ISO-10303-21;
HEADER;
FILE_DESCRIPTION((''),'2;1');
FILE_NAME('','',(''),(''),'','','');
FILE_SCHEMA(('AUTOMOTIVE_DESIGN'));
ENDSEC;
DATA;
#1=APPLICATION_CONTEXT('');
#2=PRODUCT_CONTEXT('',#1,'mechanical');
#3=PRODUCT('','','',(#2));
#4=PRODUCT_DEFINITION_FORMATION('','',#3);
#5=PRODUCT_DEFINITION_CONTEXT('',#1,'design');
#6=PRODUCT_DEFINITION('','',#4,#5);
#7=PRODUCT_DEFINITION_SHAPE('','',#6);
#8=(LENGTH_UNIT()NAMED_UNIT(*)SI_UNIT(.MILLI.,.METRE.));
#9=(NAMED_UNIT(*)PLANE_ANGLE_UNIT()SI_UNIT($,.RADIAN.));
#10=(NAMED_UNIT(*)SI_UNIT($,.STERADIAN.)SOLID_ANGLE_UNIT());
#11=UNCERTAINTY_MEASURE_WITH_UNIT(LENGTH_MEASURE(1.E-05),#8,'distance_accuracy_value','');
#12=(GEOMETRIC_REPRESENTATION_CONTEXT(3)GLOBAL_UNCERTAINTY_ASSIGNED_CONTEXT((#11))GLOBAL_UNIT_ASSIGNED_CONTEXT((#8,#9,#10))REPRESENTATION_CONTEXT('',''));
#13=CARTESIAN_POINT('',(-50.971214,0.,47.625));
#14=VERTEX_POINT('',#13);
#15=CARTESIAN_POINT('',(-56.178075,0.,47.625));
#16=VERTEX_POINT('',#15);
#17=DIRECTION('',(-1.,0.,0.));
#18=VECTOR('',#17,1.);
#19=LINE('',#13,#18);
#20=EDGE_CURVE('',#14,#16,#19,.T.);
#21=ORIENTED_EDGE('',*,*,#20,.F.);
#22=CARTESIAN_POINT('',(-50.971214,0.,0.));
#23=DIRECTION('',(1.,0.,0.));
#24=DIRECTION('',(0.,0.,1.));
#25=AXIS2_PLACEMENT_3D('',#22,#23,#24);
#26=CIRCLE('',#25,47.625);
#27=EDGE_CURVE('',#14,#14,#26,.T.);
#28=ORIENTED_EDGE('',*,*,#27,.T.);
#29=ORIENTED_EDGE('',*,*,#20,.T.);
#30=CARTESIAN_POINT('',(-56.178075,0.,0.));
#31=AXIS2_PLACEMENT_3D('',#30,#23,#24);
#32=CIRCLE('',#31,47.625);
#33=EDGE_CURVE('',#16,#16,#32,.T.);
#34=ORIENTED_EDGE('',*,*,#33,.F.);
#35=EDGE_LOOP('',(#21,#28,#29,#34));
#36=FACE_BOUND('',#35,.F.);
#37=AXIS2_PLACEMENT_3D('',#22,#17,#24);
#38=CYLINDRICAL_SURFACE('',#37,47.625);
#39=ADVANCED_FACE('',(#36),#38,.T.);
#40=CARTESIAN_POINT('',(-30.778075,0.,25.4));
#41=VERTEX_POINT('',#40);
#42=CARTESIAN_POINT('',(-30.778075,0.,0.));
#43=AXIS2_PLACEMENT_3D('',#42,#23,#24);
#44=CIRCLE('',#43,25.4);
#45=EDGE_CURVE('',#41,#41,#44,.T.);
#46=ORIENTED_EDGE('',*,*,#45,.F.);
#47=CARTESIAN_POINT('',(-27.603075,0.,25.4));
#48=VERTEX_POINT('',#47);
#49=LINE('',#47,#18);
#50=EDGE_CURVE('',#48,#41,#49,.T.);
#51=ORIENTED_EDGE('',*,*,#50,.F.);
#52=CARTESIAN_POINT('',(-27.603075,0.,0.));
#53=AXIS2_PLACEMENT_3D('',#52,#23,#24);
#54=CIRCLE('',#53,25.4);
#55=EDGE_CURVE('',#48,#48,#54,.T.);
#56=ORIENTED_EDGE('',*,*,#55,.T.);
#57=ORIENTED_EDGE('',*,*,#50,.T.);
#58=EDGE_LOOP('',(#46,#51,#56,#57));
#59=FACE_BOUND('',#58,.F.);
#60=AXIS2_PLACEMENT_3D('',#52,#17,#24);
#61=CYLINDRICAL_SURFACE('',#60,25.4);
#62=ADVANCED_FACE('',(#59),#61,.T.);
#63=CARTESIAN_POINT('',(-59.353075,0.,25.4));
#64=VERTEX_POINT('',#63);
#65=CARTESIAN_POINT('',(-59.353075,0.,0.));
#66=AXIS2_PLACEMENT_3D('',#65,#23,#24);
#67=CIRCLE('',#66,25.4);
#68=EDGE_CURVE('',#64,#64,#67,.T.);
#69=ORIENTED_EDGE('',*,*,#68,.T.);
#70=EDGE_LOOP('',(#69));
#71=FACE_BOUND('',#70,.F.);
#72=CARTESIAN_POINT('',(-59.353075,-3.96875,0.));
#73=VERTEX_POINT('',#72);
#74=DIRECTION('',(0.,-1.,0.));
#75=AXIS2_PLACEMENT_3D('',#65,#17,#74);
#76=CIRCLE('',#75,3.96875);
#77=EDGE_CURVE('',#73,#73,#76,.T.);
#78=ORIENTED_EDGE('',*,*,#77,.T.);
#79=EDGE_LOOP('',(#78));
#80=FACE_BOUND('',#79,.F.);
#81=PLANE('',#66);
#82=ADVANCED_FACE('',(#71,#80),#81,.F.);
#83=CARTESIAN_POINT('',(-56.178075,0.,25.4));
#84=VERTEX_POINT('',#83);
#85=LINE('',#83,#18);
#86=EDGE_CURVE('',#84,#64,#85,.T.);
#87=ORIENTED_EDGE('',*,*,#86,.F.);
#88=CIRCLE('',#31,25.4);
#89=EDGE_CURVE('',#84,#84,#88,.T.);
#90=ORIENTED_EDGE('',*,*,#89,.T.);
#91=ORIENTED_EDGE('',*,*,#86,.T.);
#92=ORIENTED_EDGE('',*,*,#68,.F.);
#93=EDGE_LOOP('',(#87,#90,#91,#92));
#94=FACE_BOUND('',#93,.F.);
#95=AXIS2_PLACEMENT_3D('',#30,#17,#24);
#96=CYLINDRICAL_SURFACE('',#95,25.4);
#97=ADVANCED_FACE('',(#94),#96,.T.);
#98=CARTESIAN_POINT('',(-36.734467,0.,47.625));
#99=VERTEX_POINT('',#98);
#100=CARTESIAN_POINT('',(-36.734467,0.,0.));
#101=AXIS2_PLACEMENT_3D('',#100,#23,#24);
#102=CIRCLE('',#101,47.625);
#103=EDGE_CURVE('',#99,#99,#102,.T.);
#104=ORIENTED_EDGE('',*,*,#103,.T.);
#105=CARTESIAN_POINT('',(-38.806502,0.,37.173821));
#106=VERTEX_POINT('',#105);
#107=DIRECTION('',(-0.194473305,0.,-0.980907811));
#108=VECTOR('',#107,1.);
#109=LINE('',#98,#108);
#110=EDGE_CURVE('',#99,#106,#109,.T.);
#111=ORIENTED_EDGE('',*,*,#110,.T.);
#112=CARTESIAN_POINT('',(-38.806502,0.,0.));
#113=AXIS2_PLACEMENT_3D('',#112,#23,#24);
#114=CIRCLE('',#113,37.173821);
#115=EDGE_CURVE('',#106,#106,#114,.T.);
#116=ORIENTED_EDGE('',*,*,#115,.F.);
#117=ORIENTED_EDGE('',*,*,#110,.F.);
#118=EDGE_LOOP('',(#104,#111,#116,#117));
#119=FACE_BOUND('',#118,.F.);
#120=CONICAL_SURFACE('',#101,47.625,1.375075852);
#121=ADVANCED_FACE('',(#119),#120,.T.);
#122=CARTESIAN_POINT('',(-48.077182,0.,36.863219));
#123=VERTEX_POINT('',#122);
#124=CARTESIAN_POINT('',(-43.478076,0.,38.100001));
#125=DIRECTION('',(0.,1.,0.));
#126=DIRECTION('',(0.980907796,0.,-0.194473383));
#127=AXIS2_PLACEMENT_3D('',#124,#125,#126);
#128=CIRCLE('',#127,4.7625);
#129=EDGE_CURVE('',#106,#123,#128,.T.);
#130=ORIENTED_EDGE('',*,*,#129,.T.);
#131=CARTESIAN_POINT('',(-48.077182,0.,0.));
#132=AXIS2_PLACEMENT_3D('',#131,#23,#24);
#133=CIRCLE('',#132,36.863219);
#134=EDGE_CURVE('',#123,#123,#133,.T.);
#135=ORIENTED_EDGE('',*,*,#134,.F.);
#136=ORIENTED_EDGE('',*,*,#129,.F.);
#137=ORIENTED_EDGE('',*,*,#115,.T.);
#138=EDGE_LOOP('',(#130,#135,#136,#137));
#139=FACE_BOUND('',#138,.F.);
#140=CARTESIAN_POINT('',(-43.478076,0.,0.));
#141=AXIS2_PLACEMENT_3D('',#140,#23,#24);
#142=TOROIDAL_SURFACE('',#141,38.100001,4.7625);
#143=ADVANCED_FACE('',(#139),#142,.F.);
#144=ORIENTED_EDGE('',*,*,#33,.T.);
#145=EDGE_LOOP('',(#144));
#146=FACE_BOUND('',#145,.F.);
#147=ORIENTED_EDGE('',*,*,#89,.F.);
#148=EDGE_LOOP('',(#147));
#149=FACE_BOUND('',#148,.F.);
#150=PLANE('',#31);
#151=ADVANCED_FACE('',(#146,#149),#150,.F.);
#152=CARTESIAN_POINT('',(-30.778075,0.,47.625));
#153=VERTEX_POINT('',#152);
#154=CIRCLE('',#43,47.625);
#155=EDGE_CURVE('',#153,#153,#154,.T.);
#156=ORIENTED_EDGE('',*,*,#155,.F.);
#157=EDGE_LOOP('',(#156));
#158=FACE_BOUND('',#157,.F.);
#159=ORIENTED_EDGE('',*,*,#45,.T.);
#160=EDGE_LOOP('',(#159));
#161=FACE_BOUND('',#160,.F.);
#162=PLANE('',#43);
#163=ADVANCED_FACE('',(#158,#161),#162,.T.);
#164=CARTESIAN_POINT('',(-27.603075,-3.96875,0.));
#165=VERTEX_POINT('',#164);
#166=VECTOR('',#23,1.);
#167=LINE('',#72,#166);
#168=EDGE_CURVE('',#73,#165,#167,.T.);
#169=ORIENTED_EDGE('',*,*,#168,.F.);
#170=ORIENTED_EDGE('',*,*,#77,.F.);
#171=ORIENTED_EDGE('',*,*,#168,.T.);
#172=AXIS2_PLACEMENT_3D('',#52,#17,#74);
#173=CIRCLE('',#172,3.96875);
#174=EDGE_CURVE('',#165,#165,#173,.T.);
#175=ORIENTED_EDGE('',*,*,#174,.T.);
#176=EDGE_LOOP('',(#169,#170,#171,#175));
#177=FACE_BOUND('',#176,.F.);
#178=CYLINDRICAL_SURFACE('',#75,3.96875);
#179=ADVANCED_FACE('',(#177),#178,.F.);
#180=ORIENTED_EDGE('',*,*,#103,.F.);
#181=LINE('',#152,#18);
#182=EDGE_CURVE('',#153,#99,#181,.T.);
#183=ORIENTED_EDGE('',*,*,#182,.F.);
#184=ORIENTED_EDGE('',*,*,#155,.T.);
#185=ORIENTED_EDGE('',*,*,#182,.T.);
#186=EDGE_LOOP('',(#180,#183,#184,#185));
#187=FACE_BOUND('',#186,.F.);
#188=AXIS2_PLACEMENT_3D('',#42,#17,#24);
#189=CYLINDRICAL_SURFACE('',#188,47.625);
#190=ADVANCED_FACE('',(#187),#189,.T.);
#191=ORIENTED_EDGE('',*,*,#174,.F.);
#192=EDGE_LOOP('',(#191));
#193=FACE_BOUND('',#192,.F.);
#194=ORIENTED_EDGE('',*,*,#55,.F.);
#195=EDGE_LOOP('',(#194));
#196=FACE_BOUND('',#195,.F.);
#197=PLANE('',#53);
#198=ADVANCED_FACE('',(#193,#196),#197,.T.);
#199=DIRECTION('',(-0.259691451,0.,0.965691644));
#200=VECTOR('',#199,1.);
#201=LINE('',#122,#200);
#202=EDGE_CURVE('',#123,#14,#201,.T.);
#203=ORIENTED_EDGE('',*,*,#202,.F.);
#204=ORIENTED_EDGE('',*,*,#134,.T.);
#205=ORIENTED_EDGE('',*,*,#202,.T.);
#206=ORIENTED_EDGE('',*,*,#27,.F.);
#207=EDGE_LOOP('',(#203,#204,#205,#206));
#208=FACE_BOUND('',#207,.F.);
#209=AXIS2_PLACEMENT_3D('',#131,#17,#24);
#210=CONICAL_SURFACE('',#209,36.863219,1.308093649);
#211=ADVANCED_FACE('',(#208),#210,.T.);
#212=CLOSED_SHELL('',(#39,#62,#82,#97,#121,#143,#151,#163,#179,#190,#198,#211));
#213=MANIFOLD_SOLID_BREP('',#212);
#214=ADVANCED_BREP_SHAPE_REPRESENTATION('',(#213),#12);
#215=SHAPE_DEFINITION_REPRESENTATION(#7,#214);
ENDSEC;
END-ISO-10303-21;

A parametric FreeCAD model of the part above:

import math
import FreeCAD as App
import Part
import Sketcher
Q = App.Units.Quantity

doc = App.newDocument("Part")
body = doc.addObject("PartDesign::Body", "Body")

# Sketch on XZ plane
sketch1 = body.newObject("Sketcher::SketchObject", "Sketch")
sketch1.AttachmentSupport = (doc.getObject("XZ_Plane"), [""])
sketch1.MapMode = "FlatFace"
sketch1.addGeometry(Part.LineSegment(App.Vector(-59.4, 25.4, 0), App.Vector(-59.4, 0, 0)), False)
sketch1.addGeometry(Part.LineSegment(App.Vector(-59.4, 0, 0), App.Vector(-27.6, 0, 0)), False)
sketch1.addGeometry(Part.LineSegment(App.Vector(-27.6, 0, 0), App.Vector(-27.6, 25.4, 0)), False)
sketch1.addGeometry(Part.LineSegment(App.Vector(-27.6, 25.4, 0), App.Vector(-30.8, 25.4, 0)), False)
sketch1.addGeometry(Part.LineSegment(App.Vector(-30.8, 25.4, 0), App.Vector(-30.8, 47.6, 0)), False)
sketch1.addGeometry(Part.LineSegment(App.Vector(-30.8, 47.6, 0), App.Vector(-36.7, 47.6, 0)), False)
sketch1.addGeometry(Part.LineSegment(App.Vector(-36.7, 47.6, 0), App.Vector(-38.8, 37.2, 0)), False)
sketch1.addGeometry(Part.ArcOfCircle(Part.Circle(App.Vector(-43.5, 38.1, 0), App.Vector(0, 0, 1), 4.8), math.radians(-165), math.radians(-11)), False)
sketch1.addGeometry(Part.LineSegment(App.Vector(-48.1, 36.9, 0), App.Vector(-51, 47.6, 0)), False)
sketch1.addGeometry(Part.LineSegment(App.Vector(-51, 47.6, 0), App.Vector(-56.2, 47.6, 0)), False)
sketch1.addGeometry(Part.LineSegment(App.Vector(-56.2, 47.6, 0), App.Vector(-56.2, 25.4, 0)), False)
sketch1.addGeometry(Part.LineSegment(App.Vector(-56.2, 25.4, 0), App.Vector(-59.4, 25.4, 0)), False)
sketch1.addConstraint(Sketcher.Constraint("Coincident", 0, 2, 1, 1))
sketch1.addConstraint(Sketcher.Constraint("Coincident", 1, 2, 2, 1))
sketch1.addConstraint(Sketcher.Constraint("Coincident", 2, 2, 3, 1))
sketch1.addConstraint(Sketcher.Constraint("Coincident", 3, 2, 4, 1))
sketch1.addConstraint(Sketcher.Constraint("Coincident", 4, 2, 5, 1))
sketch1.addConstraint(Sketcher.Constraint("Coincident", 5, 2, 6, 1))
sketch1.addConstraint(Sketcher.Constraint("Tangent", 6, 2, 7, 2))
sketch1.addConstraint(Sketcher.Constraint("Tangent", 7, 1, 8, 1))
sketch1.addConstraint(Sketcher.Constraint("Coincident", 8, 2, 9, 1))
sketch1.addConstraint(Sketcher.Constraint("Coincident", 9, 2, 10, 1))
sketch1.addConstraint(Sketcher.Constraint("Coincident", 10, 2, 11, 1))
sketch1.addConstraint(Sketcher.Constraint("Coincident", 11, 2, 0, 1))
sketch1.addConstraint(Sketcher.Constraint("Vertical", 0))
sketch1.addConstraint(Sketcher.Constraint("Horizontal", 1))
sketch1.addConstraint(Sketcher.Constraint("Vertical", 2))
sketch1.addConstraint(Sketcher.Constraint("Horizontal", 3))
sketch1.addConstraint(Sketcher.Constraint("Vertical", 4))
sketch1.addConstraint(Sketcher.Constraint("Horizontal", 5))
sketch1.addConstraint(Sketcher.Constraint("Horizontal", 9))
sketch1.addConstraint(Sketcher.Constraint("Vertical", 10))
sketch1.addConstraint(Sketcher.Constraint("Horizontal", 11))
sketch1.addConstraint(Sketcher.Constraint("PointOnObject", 0, 2, -1))
sketch1.addConstraint(Sketcher.Constraint("Horizontal", 5, 2, 8, 2))
sketch1.addConstraint(Sketcher.Constraint("Horizontal", 3, 2, 10, 2))
sketch1.addConstraint(Sketcher.Constraint("Equal", 3, 11))
sketch1.addConstraint(Sketcher.Constraint("DistanceY", 0, 2, 0, 1, Q("1 in")))
sketch1.addConstraint(Sketcher.Constraint("Radius", 7, Q("0.1875 in")))
sketch1.addConstraint(Sketcher.Constraint("DistanceX", 1, 1, 1, 2, Q("1.25 in")))
sketch1.addConstraint(Sketcher.Constraint("DistanceY", -1, 1, 7, 3, Q("1.5 in")))
sketch1.addConstraint(Sketcher.Constraint("DistanceX", 7, 3, 3, 2, Q("0.5 in")))
sketch1.addConstraint(Sketcher.Constraint("DistanceX", 9, 2, 7, 3, Q("0.5 in")))
sketch1.addConstraint(Sketcher.Constraint("DistanceY", 4, 1, 4, 2, Q("0.875 in")))
sketch1.addConstraint(Sketcher.Constraint("Distance", 6, 10.654599))
sketch1.addConstraint(Sketcher.Constraint("DistanceX", 9, 2, 9, 1, 5.206861))
sketch1.addConstraint(Sketcher.Constraint("DistanceX", 7, 1, -1, 1, 48.077182))
revolution = body.newObject("PartDesign::Revolution", "Revolution")
revolution.Profile = sketch1
revolution.ReferenceAxis = (sketch1, ["H_Axis"])
revolution.Angle = 360

# Sketch on YZ plane
sketch2 = body.newObject("Sketcher::SketchObject", "Sketch001")
sketch2.AttachmentSupport = (doc.getObject("YZ_Plane"), [""])
sketch2.MapMode = "FlatFace"
sketch2.AttachmentOffset = App.Placement(App.Vector(0, 0, -59.353075), App.Rotation())
sketch2.addGeometry(Part.Circle(App.Vector(0, 0, 0), App.Vector(0, 0, 1), 4), False)
sketch2.addConstraint(Sketcher.Constraint("Coincident", 0, 3, -1, 1))
sketch2.addConstraint(Sketcher.Constraint("Diameter", 0, Q("0.3125 in")))
pocket1 = body.newObject("PartDesign::Pocket", "Pocket")
pocket1.Profile = sketch2
pocket1.Type = "ThroughAll"
pocket1.Reversed = True

doc.recompute()
